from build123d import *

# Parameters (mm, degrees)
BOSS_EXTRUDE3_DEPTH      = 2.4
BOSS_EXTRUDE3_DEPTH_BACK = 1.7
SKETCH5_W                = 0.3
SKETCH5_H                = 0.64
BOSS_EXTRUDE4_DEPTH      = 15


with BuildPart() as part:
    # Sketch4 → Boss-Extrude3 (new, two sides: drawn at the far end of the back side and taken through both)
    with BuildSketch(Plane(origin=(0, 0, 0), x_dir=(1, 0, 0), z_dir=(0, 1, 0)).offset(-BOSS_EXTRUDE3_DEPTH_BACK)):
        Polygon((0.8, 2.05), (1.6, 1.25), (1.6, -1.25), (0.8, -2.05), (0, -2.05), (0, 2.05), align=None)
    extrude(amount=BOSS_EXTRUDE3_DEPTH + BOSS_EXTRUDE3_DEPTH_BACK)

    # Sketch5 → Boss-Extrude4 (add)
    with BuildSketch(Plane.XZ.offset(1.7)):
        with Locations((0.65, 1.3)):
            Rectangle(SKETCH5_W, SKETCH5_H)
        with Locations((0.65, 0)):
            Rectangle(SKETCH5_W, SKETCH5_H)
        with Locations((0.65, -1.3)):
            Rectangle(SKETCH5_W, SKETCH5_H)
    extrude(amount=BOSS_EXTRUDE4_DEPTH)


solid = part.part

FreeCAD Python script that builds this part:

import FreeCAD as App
import Part
import Sketcher

V = App.Vector


def add_polygon(sketch, points):
    """Adds a closed chain of lines whose ends are joined by coincident constraints."""
    first, n = sketch.GeometryCount, len(points)
    for a, b in zip(points, points[1:] + points[:1]):
        sketch.addGeometry(Part.LineSegment(App.Vector(*a, 0), App.Vector(*b, 0)), False)
    for i in range(n):
        sketch.addConstraint(Sketcher.Constraint("Coincident", first + i, 2, first + (i + 1) % n, 1))

doc = App.newDocument("Part")
params = doc.addObject("Spreadsheet::Sheet", "Params")
for row, (alias, value) in enumerate([
    ("sketch1_width", "0.8 mm"),
    ("sketch1_height", "4.1 mm"),
    ("sketch1_height2", "2.5 mm"),
    ("pad1_length", "2.4 mm"),
    ("pad1_length2", "1.7 mm"),
    ("sketch2_width", "0.3 mm"),
    ("sketch2_height", "0.64 mm"),
    ("pad2_length", "15 mm"),
], start=1):
    params.set(f"A{row}", alias)
    params.set(f"B{row}", "=" + value)
    params.setAlias(f"B{row}", alias)

body = doc.addObject("PartDesign::Body", "Body")

sketch1 = body.newObject("Sketcher::SketchObject", "Sketch")
sketch1.AttachmentSupport = (doc.getObject("XZ_Plane"), [""])
sketch1.MapMode = "FlatFace"
add_polygon(sketch1, [(1.6, -1.2), (0.8, -2), (0, -2), (0, 2), (0.8, 2), (1.6, 1.2)])
sketch1.addConstraint([
    Sketcher.Constraint("Horizontal", 1),
    Sketcher.Constraint("Vertical", 2),
    Sketcher.Constraint("Horizontal", 3),
    Sketcher.Constraint("Vertical", 5),
    Sketcher.Constraint("Symmetric", 1, 2, 2, 2, -1, 1),
    Sketcher.Constraint("Perpendicular", 0, 4),
    Sketcher.Constraint("Vertical", 0, 2, 3, 2),
    Sketcher.Constraint("Equal", 0, 4),
    Sketcher.Constraint("DistanceX", 1, 2, 1, 1, 0.8),
    Sketcher.Constraint("DistanceY", 2, 1, 2, 2, 4.1),
    Sketcher.Constraint("DistanceY", 5, 2, 5, 1, 2.5),
])
sketch1.setExpression("Constraints[14]", "Params.sketch1_width")
sketch1.setExpression("Constraints[15]", "Params.sketch1_height")
sketch1.setExpression("Constraints[16]", "Params.sketch1_height2")
pad1 = body.newObject("PartDesign::Pad", "Pad")
pad1.Profile = sketch1
pad1.Type = "TwoLengths"
pad1.setExpression("Length", "Params.pad1_length")
pad1.setExpression("Length2", "Params.pad1_length2")
pad1.Reversed = True

sketch2 = body.newObject("Sketcher::SketchObject", "Sketch001")
sketch2.AttachmentSupport = (doc.getObject("XZ_Plane"), [""])
sketch2.MapMode = "FlatFace"
sketch2.AttachmentOffset = App.Placement(V(0, 0, 1.7), App.Rotation())
add_polygon(sketch2, [(0.5, 1.62), (0.5, 0.98), (0.8, 0.98), (0.8, 1.62)])
add_polygon(sketch2, [(0.5, 0.32), (0.5, -0.32), (0.8, -0.32), (0.8, 0.32)])
add_polygon(sketch2, [(0.5, -0.98), (0.5, -1.62), (0.8, -1.62), (0.8, -0.98)])
sketch2.addConstraint([
    Sketcher.Constraint("Vertical", 0),
    Sketcher.Constraint("Horizontal", 1),
    Sketcher.Constraint("Vertical", 2),
    Sketcher.Constraint("Horizontal", 3),
    Sketcher.Constraint("Vertical", 4),
    Sketcher.Constraint("Horizontal", 5),
    Sketcher.Constraint("Vertical", 6),
    Sketcher.Constraint("Horizontal", 7),
    Sketcher.Constraint("Vertical", 8),
    Sketcher.Constraint("Horizontal", 9),
    Sketcher.Constraint("Vertical", 10),
    Sketcher.Constraint("Horizontal", 11),
    Sketcher.Constraint("Symmetric", 3, 2, 8, 2, -1),
    Sketcher.Constraint("Symmetric", 1, 2, 10, 2, -1),
    Sketcher.Constraint("Vertical", 3, 2, 4, 2),
    Sketcher.Constraint("Vertical", 2, 2, 5, 2),
    Sketcher.Constraint("Equal", 2, 4),
    Sketcher.Constraint("DistanceX", 1, 1, 1, 2, 0.3),
    Sketcher.Constraint("DistanceY", 0, 2, 0, 1, 0.64),
    Sketcher.Constraint("DistanceX", -1, 1, 0, 2, 0.5),
    Sketcher.Constraint("DistanceY", 4, 2, 0, 2, 1.3),
    Sketcher.Constraint("DistanceY", 8, 2, 4, 2, 1.3),
])
sketch2.setExpression("Constraints[29]", "Params.sketch2_width")
sketch2.setExpression("Constraints[30]", "Params.sketch2_height")
pad2 = body.newObject("PartDesign::Pad", "Pad001")
pad2.Profile = sketch2
pad2.setExpression("Length", "Params.pad2_length")

doc.recompute()
